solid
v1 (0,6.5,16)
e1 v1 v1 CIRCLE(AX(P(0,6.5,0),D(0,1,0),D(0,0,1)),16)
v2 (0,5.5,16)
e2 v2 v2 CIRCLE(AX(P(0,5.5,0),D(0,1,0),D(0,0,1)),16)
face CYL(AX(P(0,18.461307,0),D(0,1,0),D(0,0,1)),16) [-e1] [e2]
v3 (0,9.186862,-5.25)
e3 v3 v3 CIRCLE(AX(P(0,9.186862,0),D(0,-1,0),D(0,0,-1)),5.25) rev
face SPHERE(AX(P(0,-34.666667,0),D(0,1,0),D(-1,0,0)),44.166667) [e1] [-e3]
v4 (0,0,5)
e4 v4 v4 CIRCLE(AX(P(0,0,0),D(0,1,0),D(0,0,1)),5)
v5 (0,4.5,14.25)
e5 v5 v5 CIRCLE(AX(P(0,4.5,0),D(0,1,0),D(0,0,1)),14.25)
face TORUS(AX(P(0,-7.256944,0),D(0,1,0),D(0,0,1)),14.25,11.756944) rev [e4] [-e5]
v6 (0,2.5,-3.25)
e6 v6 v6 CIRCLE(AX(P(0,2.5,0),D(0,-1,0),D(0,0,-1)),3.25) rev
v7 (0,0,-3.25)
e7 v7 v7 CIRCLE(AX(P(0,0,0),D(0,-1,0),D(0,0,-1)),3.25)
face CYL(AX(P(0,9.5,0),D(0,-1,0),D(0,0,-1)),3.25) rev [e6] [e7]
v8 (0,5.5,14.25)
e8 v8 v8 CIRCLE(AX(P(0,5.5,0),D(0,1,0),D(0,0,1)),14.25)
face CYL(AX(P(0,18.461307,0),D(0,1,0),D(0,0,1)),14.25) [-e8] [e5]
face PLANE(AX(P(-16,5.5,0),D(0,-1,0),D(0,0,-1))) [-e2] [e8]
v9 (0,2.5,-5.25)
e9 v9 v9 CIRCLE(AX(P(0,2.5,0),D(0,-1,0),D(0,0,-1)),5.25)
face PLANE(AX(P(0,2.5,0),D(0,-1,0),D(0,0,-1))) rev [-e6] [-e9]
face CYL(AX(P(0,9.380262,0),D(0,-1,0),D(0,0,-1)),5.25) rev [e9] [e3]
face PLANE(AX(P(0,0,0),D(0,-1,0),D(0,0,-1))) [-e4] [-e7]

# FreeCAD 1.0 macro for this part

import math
import FreeCAD as App
import Part
import Sketcher

V = App.Vector

doc = App.newDocument("Part")
body = doc.addObject("PartDesign::Body", "Body")

# Sketch on XY plane
sketch1 = body.newObject("Sketcher::SketchObject", "Sketch")
sketch1.AttachmentSupport = (doc.getObject("XY_Plane"), [""])
sketch1.MapMode = "FlatFace"
sketch1.addGeometry([
    Part.LineSegment(V(-16, 6.5, 0), V(-16, 5.5, 0)),  # 0
    Part.LineSegment(V(-16, 5.5, 0), V(-14.25, 5.5, 0)),  # 1
    Part.LineSegment(V(-14.25, 5.5, 0), V(-14.25, 4.5, 0)),  # 2
    Part.ArcOfCircle(Part.Circle(V(-14.25, -7.256944, 0), V(0, 0, 1), 11.756944), math.radians(38.115409), math.radians(90)),  # 3
    Part.LineSegment(V(-5, 0, 0), V(0, 0, 0)),  # 4
    Part.LineSegment(V(0, 0, 0), V(0, 9.5, 0)),  # 5
    Part.ArcOfCircle(Part.Circle(V(0, -34.666667, 0), V(0, 0, 1), 44.166667), math.radians(90), math.radians(111.239311)),  # 6
], False)
sketch1.addConstraint([
    Sketcher.Constraint("Coincident", 0, 2, 1, 1),
    Sketcher.Constraint("Coincident", 1, 2, 2, 1),
    Sketcher.Constraint("Coincident", 2, 2, 3, 2),
    Sketcher.Constraint("Coincident", 3, 1, 4, 1),
    Sketcher.Constraint("Coincident", 4, 2, 5, 1),
    Sketcher.Constraint("Coincident", 5, 2, 6, 1),
    Sketcher.Constraint("Coincident", 6, 2, 0, 1),
    Sketcher.Constraint("Vertical", 0),
    Sketcher.Constraint("Horizontal", 1),
    Sketcher.Constraint("Vertical", 2),
    Sketcher.Constraint("Horizontal", 4),
    Sketcher.Constraint("Vertical", 5),
    Sketcher.Constraint("Coincident", 4, 2, -1, 1),
    Sketcher.Constraint("PointOnObject", 6, 3, -2),
    Sketcher.Constraint("Vertical", 3, 3, 1, 2),
    Sketcher.Constraint("Equal", 0, 2),
    Sketcher.Constraint("DistanceX", 4, 1, 4, 2, 5.0),
    Sketcher.Constraint("DistanceY", 0, 2, 0, 1, 1.0),
    Sketcher.Constraint("DistanceY", 5, 1, 5, 2, 9.5),
    Sketcher.Constraint("DistanceX", 0, 2, -1, 1, 16.0),
    Sketcher.Constraint("DistanceY", 1, 2, 5, 2, 4.0),
    Sketcher.Constraint("DistanceX", 1, 1, 1, 2, 1.75),
])
revolution = body.newObject("PartDesign::Revolution", "Revolution")
revolution.Profile = sketch1
revolution.ReferenceAxis = (sketch1, ["V_Axis"])
revolution.Angle = 360

# Sketch on XZ plane
sketch2 = body.newObject("Sketcher::SketchObject", "Sketch001")
sketch2.AttachmentSupport = (doc.getObject("XZ_Plane"), [""])
sketch2.MapMode = "FlatFace"
sketch2.addGeometry(Part.Circle(V(0, 0, 0), V(0, 0, 1), 3.25), False)
sketch2.addConstraint([
    Sketcher.Constraint("Coincident", 0, 3, -1, 1),
    Sketcher.Constraint("Diameter", 0, 6.5),
])
pocket1 = body.newObject("PartDesign::Pocket", "Pocket")
pocket1.Profile = sketch2
pocket1.Type = "ThroughAll"

# Sketch on XZ plane
sketch3 = body.newObject("Sketcher::SketchObject", "Sketch002")
sketch3.AttachmentSupport = (doc.getObject("XZ_Plane"), [""])
sketch3.MapMode = "FlatFace"
sketch3.AttachmentOffset = App.Placement(V(0, 0, -2.5), App.Rotation())
sketch3.addGeometry(Part.Circle(V(0, 0, 0), V(0, 0, 1), 5.25), False)
sketch3.addConstraint([
    Sketcher.Constraint("Coincident", 0, 3, -1, 1),
    Sketcher.Constraint("Diameter", 0, 10.5),
])
pocket2 = body.newObject("PartDesign::Pocket", "Pocket001")
pocket2.Profile = sketch3
pocket2.Type = "ThroughAll"

doc.recompute()
